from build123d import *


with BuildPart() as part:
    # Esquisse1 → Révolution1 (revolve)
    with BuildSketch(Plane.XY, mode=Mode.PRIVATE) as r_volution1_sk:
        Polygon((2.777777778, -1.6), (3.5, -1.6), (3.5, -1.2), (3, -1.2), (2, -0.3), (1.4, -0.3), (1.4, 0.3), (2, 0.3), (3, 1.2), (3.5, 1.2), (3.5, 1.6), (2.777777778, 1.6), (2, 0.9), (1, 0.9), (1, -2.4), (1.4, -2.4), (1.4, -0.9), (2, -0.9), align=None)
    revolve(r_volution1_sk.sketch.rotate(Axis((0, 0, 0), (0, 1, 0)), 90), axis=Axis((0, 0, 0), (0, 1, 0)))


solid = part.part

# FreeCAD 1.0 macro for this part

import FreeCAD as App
import Part
import Sketcher

V = App.Vector
Q = App.Units.Quantity

doc = App.newDocument("Part")
params = doc.addObject("Spreadsheet::Sheet", "Params")
for row, (alias, value) in enumerate([
    ("sketch1_width", "1 mm"),
    ("sketch1_width2", "0.5 mm"),
    ("sketch1_width3", "0.6 mm"),
    ("sketch1_height", "3.3 mm"),
    ("sketch1_height2", "1.5 mm"),
    ("revolution_angle", "360 deg"),
], start=1):
    params.set(f"A{row}", alias)
    params.set(f"B{row}", "=" + value)
    params.setAlias(f"B{row}", alias)

body = doc.addObject("PartDesign::Body", "Body")

# Sketch on XY plane
sketch1 = doc.addObject("Sketcher::SketchObject", "Sketch")
body.addObject(sketch1)
sketch1.AttachmentSupport = (doc.XY_Plane, [""])
sketch1.MapMode = "FlatFace"
sketch1.addGeometry(Part.LineSegment(V(2.777778, -1.6, 0), V(3.5, -1.6, 0)), False)
sketch1.addGeometry(Part.LineSegment(V(3.5, -1.6, 0), V(3.5, -1.2, 0)), False)
sketch1.addGeometry(Part.LineSegment(V(3.5, -1.2, 0), V(3, -1.2, 0)), False)
sketch1.addGeometry(Part.LineSegment(V(3, -1.2, 0), V(2, -0.3, 0)), False)
sketch1.addGeometry(Part.LineSegment(V(2, -0.3, 0), V(1.4, -0.3, 0)), False)
sketch1.addGeometry(Part.LineSegment(V(1.4, -0.3, 0), V(1.4, 0.3, 0)), False)
sketch1.addGeometry(Part.LineSegment(V(1.4, 0.3, 0), V(2, 0.3, 0)), False)
sketch1.addGeometry(Part.LineSegment(V(2, 0.3, 0), V(3, 1.2, 0)), False)
sketch1.addGeometry(Part.LineSegment(V(3, 1.2, 0), V(3.5, 1.2, 0)), False)
sketch1.addGeometry(Part.LineSegment(V(3.5, 1.2, 0), V(3.5, 1.6, 0)), False)
sketch1.addGeometry(Part.LineSegment(V(3.5, 1.6, 0), V(2.777778, 1.6, 0)), False)
sketch1.addGeometry(Part.LineSegment(V(2.777778, 1.6, 0), V(2, 0.9, 0)), False)
sketch1.addGeometry(Part.LineSegment(V(2, 0.9, 0), V(1, 0.9, 0)), False)
sketch1.addGeometry(Part.LineSegment(V(1, 0.9, 0), V(1, -2.4, 0)), False)
sketch1.addGeometry(Part.LineSegment(V(1, -2.4, 0), V(1.4, -2.4, 0)), False)
sketch1.addGeometry(Part.LineSegment(V(1.4, -2.4, 0), V(1.4, -0.9, 0)), False)
sketch1.addGeometry(Part.LineSegment(V(1.4, -0.9, 0), V(2, -0.9, 0)), False)
sketch1.addGeometry(Part.LineSegment(V(2, -0.9, 0), V(2.777778, -1.6, 0)), False)
sketch1.addConstraint(Sketcher.Constraint("Coincident", 0, 2, 1, 1))
sketch1.addConstraint(Sketcher.Constraint("Coincident", 1, 2, 2, 1))
sketch1.addConstraint(Sketcher.Constraint("Coincident", 2, 2, 3, 1))
sketch1.addConstraint(Sketcher.Constraint("Coincident", 3, 2, 4, 1))
sketch1.addConstraint(Sketcher.Constraint("Coincident", 4, 2, 5, 1))
sketch1.addConstraint(Sketcher.Constraint("Coincident", 5, 2, 6, 1))
sketch1.addConstraint(Sketcher.Constraint("Coincident", 6, 2, 7, 1))
sketch1.addConstraint(Sketcher.Constraint("Coincident", 7, 2, 8, 1))
sketch1.addConstraint(Sketcher.Constraint("Coincident", 8, 2, 9, 1))
sketch1.addConstraint(Sketcher.Constraint("Coincident", 9, 2, 10, 1))
sketch1.addConstraint(Sketcher.Constraint("Coincident", 10, 2, 11, 1))
sketch1.addConstraint(Sketcher.Constraint("Coincident", 11, 2, 12, 1))
sketch1.addConstraint(Sketcher.Constraint("Coincident", 12, 2, 13, 1))
sketch1.addConstraint(Sketcher.Constraint("Coincident", 13, 2, 14, 1))
sketch1.addConstraint(Sketcher.Constraint("Coincident", 14, 2, 15, 1))
sketch1.addConstraint(Sketcher.Constraint("Coincident", 15, 2, 16, 1))
sketch1.addConstraint(Sketcher.Constraint("Coincident", 16, 2, 17, 1))
sketch1.addConstraint(Sketcher.Constraint("Coincident", 17, 2, 0, 1))
sketch1.addConstraint(Sketcher.Constraint("Horizontal", 0))
sketch1.addConstraint(Sketcher.Constraint("Vertical", 1))
sketch1.addConstraint(Sketcher.Constraint("Horizontal", 2))
sketch1.addConstraint(Sketcher.Constraint("Horizontal", 4))
sketch1.addConstraint(Sketcher.Constraint("Vertical", 5))
sketch1.addConstraint(Sketcher.Constraint("Horizontal", 6))
sketch1.addConstraint(Sketcher.Constraint("Horizontal", 8))
sketch1.addConstraint(Sketcher.Constraint("Vertical", 9))
sketch1.addConstraint(Sketcher.Constraint("Horizontal", 10))
sketch1.addConstraint(Sketcher.Constraint("Horizontal", 12))
sketch1.addConstraint(Sketcher.Constraint("Vertical", 13))
sketch1.addConstraint(Sketcher.Constraint("Horizontal", 14))
sketch1.addConstraint(Sketcher.Constraint("Vertical", 15))
sketch1.addConstraint(Sketcher.Constraint("Horizontal", 16))
sketch1.addConstraint(Sketcher.Constraint("Symmetric", 3, 2, 6, 2, -1))
sketch1.addConstraint(Sketcher.Constraint("Symmetric", 2, 2, 7, 2, -1))
sketch1.addConstraint(Sketcher.Constraint("Symmetric", 0, 2, 9, 2, -1))
sketch1.addConstraint(Sketcher.Constraint("Symmetric", 11, 2, 16, 2, -1))
sketch1.addConstraint(Sketcher.Constraint("Parallel", 7, 11))
sketch1.addConstraint(Sketcher.Constraint("Parallel", 3, 17))
sketch1.addConstraint(Sketcher.Constraint("Vertical", 6, 2, 11, 2))
sketch1.addConstraint(Sketcher.Constraint("Vertical", 5, 2, 14, 2))
sketch1.addConstraint(Sketcher.Constraint("Equal", 14, 1))
sketch1.addConstraint(Sketcher.Constraint("Equal", 16, 5))
sketch1.addConstraint(Sketcher.Constraint("DistanceX", 12, 2, 12, 1, Q("1 mm")))
sketch1.addConstraint(Sketcher.Constraint("DistanceX", 2, 2, 2, 1, Q("0.5 mm")))
sketch1.addConstraint(Sketcher.Constraint("DistanceX", 4, 2, 4, 1, Q("0.6 mm")))
sketch1.addConstraint(Sketcher.Constraint("DistanceY", 13, 2, 13, 1, Q("3.3 mm")))
sketch1.addConstraint(Sketcher.Constraint("DistanceY", 15, 1, 15, 2, Q("1.5 mm")))
sketch1.addConstraint(Sketcher.Constraint("DistanceX", -1, 1, 2, 2, Q("3 mm")))
sketch1.addConstraint(Sketcher.Constraint("DistanceX", -1, 1, 3, 2, Q("2 mm")))
sketch1.addConstraint(Sketcher.Constraint("DistanceY", 0, 2, -1, 1, Q("1.6 mm")))
sketch1.setExpression("Constraints[42]", "Params.sketch1_width")
sketch1.setExpression("Constraints[43]", "Params.sketch1_width2")
sketch1.setExpression("Constraints[44]", "Params.sketch1_width3")
sketch1.setExpression("Constraints[45]", "Params.sketch1_height")
sketch1.setExpression("Constraints[46]", "Params.sketch1_height2")
revolution = doc.addObject("PartDesign::Revolution", "Revolution")
body.addObject(revolution)
revolution.Profile = sketch1
revolution.ReferenceAxis = (sketch1, ["V_Axis"])
revolution.setExpression("Angle", "Params.revolution_angle")

doc.recompute()
